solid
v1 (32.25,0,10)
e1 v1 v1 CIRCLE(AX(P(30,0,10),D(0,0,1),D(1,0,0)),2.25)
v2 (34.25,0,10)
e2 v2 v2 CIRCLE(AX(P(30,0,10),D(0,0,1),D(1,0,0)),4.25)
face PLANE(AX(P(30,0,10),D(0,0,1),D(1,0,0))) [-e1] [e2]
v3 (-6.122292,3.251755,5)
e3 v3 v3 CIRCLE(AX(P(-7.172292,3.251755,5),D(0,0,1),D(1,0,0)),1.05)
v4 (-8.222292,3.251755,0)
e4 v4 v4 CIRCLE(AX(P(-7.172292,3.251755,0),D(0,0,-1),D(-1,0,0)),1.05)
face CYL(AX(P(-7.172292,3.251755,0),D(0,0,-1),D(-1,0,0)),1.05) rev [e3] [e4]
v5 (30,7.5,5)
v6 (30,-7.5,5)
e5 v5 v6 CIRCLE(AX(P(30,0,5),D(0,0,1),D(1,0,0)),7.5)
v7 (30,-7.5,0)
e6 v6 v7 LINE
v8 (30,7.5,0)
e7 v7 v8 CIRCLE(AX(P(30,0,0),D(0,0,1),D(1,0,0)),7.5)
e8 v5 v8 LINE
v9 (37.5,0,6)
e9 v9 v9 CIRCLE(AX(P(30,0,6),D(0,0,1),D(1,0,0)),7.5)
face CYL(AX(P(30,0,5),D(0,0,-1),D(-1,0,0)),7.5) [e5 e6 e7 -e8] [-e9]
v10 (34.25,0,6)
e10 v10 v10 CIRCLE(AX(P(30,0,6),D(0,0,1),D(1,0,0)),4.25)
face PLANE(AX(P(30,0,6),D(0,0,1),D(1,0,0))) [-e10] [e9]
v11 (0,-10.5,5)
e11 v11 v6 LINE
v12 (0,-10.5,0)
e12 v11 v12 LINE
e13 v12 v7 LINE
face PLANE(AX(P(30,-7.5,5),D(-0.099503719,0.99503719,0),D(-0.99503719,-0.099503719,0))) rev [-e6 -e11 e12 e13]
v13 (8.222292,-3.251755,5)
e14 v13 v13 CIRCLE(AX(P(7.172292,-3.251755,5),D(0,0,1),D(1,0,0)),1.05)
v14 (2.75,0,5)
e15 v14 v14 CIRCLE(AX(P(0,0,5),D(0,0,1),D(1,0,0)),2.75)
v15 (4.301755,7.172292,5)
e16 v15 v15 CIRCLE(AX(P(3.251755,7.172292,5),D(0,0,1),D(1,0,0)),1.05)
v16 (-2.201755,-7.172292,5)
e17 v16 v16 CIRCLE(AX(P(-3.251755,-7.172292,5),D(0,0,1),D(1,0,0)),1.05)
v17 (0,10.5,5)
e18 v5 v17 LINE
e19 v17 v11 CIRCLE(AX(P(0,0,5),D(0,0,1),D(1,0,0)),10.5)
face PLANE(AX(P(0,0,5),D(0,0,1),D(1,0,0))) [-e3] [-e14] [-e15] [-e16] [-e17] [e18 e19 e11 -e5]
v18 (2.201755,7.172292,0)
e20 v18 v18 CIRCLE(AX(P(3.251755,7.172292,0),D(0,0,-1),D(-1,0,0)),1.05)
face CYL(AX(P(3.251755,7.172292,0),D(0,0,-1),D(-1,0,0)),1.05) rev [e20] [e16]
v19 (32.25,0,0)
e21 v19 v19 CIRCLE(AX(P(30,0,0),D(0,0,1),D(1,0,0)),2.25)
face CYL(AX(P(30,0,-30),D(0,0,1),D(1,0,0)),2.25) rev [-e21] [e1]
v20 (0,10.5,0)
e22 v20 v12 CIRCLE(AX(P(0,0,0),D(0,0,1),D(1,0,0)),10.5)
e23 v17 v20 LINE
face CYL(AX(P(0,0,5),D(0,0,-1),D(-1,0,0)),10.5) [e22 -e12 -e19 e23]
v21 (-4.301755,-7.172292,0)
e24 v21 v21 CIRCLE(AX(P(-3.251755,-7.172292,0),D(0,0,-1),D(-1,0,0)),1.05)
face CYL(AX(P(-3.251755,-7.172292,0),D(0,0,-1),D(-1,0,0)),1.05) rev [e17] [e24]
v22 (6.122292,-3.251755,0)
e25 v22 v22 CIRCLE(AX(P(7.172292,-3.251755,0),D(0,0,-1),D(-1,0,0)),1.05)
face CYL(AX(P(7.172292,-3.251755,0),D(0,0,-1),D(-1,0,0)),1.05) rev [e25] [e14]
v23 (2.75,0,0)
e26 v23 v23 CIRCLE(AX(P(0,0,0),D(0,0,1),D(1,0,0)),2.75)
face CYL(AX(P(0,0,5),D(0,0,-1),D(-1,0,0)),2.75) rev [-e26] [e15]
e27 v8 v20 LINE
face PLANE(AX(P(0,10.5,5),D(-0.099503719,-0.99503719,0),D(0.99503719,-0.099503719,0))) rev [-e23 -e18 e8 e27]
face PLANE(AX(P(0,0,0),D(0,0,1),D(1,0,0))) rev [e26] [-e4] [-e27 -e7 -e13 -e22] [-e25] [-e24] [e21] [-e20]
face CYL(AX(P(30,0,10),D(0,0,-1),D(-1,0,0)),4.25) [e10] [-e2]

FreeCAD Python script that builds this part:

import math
import FreeCAD as App
import Part
import Sketcher
from FreeCAD import Vector

doc = App.newDocument("Part")
body = doc.addObject("PartDesign::Body", "Body")

sketch1 = body.newObject("Sketcher::SketchObject", "Sketch")
sketch1.AttachmentSupport = (doc.getObject("XY_Plane"), [""])
sketch1.MapMode = "FlatFace"
sketch1.addGeometry(Part.LineSegment(Vector(30, 7.5, 0), Vector(0, 10.5, 0)), False)
sketch1.addGeometry(Part.ArcOfCircle(Part.Circle(Vector(0, 0, 0), Vector(0, 0, 1), 10.5), math.radians(90), math.radians(270)), False)
sketch1.addGeometry(Part.LineSegment(Vector(0, -10.5, 0), Vector(30, -7.5, 0)), False)
sketch1.addGeometry(Part.ArcOfCircle(Part.Circle(Vector(30, 0, 0), Vector(0, 0, 1), 7.5), math.radians(-90), math.radians(90)), False)
sketch1.addGeometry(Part.Circle(Vector(0, 0, 0), Vector(0, 0, 1), 2.75), False)
sketch1.addConstraint(Sketcher.Constraint("Coincident", 0, 2, 1, 1))
sketch1.addConstraint(Sketcher.Constraint("Coincident", 1, 2, 2, 1))
sketch1.addConstraint(Sketcher.Constraint("Coincident", 2, 2, 3, 1))
sketch1.addConstraint(Sketcher.Constraint("Coincident", 3, 2, 0, 1))
sketch1.addConstraint(Sketcher.Constraint("Coincident", 1, 3, -1, 1))
sketch1.addConstraint(Sketcher.Constraint("Coincident", 4, 3, -1, 1))
sketch1.addConstraint(Sketcher.Constraint("Symmetric", 2, 2, 3, 2, -1))
sketch1.addConstraint(Sketcher.Constraint("PointOnObject", 0, 2, -2))
sketch1.addConstraint(Sketcher.Constraint("PointOnObject", 1, 2, -2))
sketch1.addConstraint(Sketcher.Constraint("Vertical", 3, 3, 2, 2))
sketch1.addConstraint(Sketcher.Constraint("Diameter", 4, 5.5))
sketch1.addConstraint(Sketcher.Constraint("Radius", 1, 10.5))
sketch1.addConstraint(Sketcher.Constraint("Radius", 3, 7.5))
sketch1.addConstraint(Sketcher.Constraint("DistanceX", -1, 1, 3, 3, 30.0))
pad1 = body.newObject("PartDesign::Pad", "Pad")
pad1.Profile = sketch1
pad1.Length = 5

sketch2 = body.newObject("Sketcher::SketchObject", "Sketch001")
sketch2.AttachmentSupport = (doc.getObject("XY_Plane"), [""])
sketch2.MapMode = "FlatFace"
sketch2.AttachmentOffset = App.Placement(Vector(0, 0, 5), App.Rotation())
sketch2.addGeometry(Part.Circle(Vector(30, 0, 0), Vector(0, 0, 1), 4.25), False)
sketch2.addConstraint(Sketcher.Constraint("PointOnObject", 0, 3, -1))
sketch2.addConstraint(Sketcher.Constraint("Diameter", 0, 8.5))
sketch2.addConstraint(Sketcher.Constraint("DistanceX", -1, 1, 0, 3, 30.0))
pad2 = body.newObject("PartDesign::Pad", "Pad001")
pad2.Profile = sketch2
pad2.Length = 5

sketch3 = body.newObject("Sketcher::SketchObject", "Sketch002")
sketch3.AttachmentSupport = (doc.getObject("XY_Plane"), [""])
sketch3.MapMode = "FlatFace"
sketch3.AttachmentOffset = App.Placement(Vector(0, 0, 10), App.Rotation())
sketch3.addGeometry(Part.Circle(Vector(30, 0, 0), Vector(0, 0, 1), 2.25), False)
sketch3.addConstraint(Sketcher.Constraint("PointOnObject", 0, 3, -1))
sketch3.addConstraint(Sketcher.Constraint("Diameter", 0, 4.5))
sketch3.addConstraint(Sketcher.Constraint("DistanceX", -1, 1, 0, 3, 30.0))
pocket1 = body.newObject("PartDesign::Pocket", "Pocket")
pocket1.Profile = sketch3
pocket1.Length = 40

sketch4 = body.newObject("Sketcher::SketchObject", "Sketch003")
sketch4.AttachmentSupport = (doc.getObject("XY_Plane"), [""])
sketch4.MapMode = "FlatFace"
sketch4.addGeometry(Part.Circle(Vector(7.172292, -3.251755, 0), Vector(0, 0, 1), 1.05), False)
sketch4.addGeometry(Part.Circle(Vector(-3.251755, -7.172292, 0), Vector(0, 0, 1), 1.05), False)
sketch4.addGeometry(Part.Circle(Vector(-7.172292, 3.251755, 0), Vector(0, 0, 1), 1.05), False)
sketch4.addGeometry(Part.Circle(Vector(3.251755, 7.172292, 0), Vector(0, 0, 1), 1.05), False)
sketch4.addConstraint(Sketcher.Constraint("Equal", 0, 1))
sketch4.addConstraint(Sketcher.Constraint("Equal", 1, 2))
sketch4.addConstraint(Sketcher.Constraint("Equal", 2, 3))
sketch4.addConstraint(Sketcher.Constraint("Symmetric", 0, 3, 2, 3, -1, 1))
sketch4.addConstraint(Sketcher.Constraint("Symmetric", 1, 3, 3, 3, -1, 1))
sketch4.addConstraint(Sketcher.Constraint("Diameter", 0, 2.1))
sketch4.addConstraint(Sketcher.Constraint("DistanceX", -1, 1, 0, 3, 7.172292))
sketch4.addConstraint(Sketcher.Constraint("DistanceY", 1, 3, -1, 1, 7.172292))
sketch4.addConstraint(Sketcher.Constraint("DistanceY", 0, 3, 2, 3, 6.503509))
sketch4.addConstraint(Sketcher.Constraint("DistanceX", 1, 3, 3, 3, 6.503509))
doc.recompute()
hole = body.newObject("PartDesign::Hole", "Hole")
hole.Profile = sketch4
hole.ThreadType = "None"
hole.Diameter = 2.1
hole.DepthType = "ThroughAll"
hole.Reversed = True

sketch5 = body.newObject("Sketcher::SketchObject", "Sketch004")
sketch5.AttachmentSupport = (doc.getObject("XY_Plane"), [""])
sketch5.MapMode = "FlatFace"
sketch5.AttachmentOffset = App.Placement(Vector(0, 0, 5), App.Rotation())
sketch5.addGeometry(Part.Circle(Vector(30, 0, 0), Vector(0, 0, 1), 7.5), False)
sketch5.addGeometry(Part.Circle(Vector(30, 0, 0), Vector(0, 0, 1), 2.25), False)
sketch5.addConstraint(Sketcher.Constraint("Coincident", 1, 3, 0, 3))
sketch5.addConstraint(Sketcher.Constraint("PointOnObject", 0, 3, -1))
sketch5.addConstraint(Sketcher.Constraint("Diameter", 0, 15.0))
sketch5.addConstraint(Sketcher.Constraint("Diameter", 1, 4.5))
sketch5.addConstraint(Sketcher.Constraint("DistanceX", -1, 1, 0, 3, 30.0))
pad3 = body.newObject("PartDesign::Pad", "Pad002")
pad3.Profile = sketch5
pad3.Length = 1

doc.recompute()
